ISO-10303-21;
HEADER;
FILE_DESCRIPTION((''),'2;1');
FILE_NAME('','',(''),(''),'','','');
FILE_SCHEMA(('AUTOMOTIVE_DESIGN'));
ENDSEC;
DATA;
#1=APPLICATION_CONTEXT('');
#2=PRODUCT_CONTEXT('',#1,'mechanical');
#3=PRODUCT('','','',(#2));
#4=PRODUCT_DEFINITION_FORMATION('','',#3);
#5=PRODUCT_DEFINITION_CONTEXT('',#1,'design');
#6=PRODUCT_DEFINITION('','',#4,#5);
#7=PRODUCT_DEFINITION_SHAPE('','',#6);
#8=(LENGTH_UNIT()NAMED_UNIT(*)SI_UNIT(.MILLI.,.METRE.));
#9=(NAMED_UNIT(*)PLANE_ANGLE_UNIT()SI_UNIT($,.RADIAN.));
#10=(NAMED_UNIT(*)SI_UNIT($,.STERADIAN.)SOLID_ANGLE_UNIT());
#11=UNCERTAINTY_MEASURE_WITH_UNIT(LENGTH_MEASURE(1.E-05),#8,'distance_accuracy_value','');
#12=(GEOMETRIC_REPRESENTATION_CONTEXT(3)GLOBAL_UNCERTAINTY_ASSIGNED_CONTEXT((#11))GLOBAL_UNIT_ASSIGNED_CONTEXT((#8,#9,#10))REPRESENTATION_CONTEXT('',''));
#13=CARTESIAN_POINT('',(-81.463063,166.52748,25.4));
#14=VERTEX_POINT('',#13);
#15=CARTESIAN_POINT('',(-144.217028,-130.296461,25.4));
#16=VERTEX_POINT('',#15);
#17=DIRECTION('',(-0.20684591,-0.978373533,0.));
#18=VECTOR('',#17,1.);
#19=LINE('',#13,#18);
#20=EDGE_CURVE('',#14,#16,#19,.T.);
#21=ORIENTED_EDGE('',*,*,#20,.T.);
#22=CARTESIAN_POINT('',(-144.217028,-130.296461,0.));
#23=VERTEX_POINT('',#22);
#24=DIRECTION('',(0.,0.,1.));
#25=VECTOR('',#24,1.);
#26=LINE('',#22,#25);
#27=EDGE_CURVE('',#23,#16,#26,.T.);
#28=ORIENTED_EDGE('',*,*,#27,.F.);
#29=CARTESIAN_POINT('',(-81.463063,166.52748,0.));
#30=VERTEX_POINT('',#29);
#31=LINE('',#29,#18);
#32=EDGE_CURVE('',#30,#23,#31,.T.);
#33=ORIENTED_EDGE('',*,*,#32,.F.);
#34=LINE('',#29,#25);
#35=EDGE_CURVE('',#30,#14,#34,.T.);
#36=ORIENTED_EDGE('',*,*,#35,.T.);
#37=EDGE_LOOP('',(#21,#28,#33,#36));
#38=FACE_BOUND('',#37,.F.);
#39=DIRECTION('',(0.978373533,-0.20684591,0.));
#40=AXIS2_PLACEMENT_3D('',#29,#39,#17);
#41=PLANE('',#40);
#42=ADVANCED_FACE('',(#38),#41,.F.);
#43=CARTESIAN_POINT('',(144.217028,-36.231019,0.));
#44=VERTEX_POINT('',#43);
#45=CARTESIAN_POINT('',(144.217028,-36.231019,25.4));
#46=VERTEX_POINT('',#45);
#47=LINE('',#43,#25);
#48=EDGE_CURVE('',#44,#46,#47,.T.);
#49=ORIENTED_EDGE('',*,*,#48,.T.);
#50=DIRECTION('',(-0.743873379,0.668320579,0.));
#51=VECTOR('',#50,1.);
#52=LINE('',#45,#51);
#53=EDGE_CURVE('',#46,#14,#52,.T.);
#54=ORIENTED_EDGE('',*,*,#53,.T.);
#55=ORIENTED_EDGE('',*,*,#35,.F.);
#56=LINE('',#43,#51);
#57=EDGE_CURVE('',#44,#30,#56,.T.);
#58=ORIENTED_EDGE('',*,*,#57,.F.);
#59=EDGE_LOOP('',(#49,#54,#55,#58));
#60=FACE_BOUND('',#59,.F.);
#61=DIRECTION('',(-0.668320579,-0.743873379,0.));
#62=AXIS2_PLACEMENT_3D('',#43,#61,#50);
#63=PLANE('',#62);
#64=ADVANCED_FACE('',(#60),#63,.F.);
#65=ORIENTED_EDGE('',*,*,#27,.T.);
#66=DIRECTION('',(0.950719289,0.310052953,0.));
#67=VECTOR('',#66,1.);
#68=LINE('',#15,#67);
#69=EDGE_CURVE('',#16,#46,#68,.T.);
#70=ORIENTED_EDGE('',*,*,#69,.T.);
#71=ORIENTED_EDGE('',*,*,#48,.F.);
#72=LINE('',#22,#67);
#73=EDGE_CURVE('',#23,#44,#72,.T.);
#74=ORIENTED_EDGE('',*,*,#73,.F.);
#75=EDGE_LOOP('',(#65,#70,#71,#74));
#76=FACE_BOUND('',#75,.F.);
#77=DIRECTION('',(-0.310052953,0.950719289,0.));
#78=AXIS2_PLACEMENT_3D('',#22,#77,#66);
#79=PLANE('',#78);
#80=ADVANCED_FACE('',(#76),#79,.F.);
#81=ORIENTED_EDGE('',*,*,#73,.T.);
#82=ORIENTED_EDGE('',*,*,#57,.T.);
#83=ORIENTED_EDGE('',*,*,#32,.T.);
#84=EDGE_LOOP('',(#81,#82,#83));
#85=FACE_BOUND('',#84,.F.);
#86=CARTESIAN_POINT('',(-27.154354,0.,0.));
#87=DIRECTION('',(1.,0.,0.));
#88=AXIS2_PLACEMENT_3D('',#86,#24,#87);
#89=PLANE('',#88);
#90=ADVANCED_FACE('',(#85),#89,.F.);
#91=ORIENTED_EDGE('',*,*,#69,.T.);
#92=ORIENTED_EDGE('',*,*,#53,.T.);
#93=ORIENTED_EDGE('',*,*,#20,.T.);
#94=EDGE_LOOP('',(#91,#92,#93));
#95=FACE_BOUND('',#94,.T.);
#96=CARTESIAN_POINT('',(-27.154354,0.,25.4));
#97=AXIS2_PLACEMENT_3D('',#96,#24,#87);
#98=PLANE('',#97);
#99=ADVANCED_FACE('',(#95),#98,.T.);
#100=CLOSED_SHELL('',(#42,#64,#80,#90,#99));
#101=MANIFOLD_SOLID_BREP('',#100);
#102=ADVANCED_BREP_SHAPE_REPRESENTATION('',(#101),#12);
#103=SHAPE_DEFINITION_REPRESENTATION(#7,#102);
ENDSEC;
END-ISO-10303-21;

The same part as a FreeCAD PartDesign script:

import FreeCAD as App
import Part
import Sketcher

V = App.Vector
Q = App.Units.Quantity

doc = App.newDocument("Part")
body = doc.addObject("PartDesign::Body", "Body")

# Sketch on XY plane
sketch1 = doc.addObject("Sketcher::SketchObject", "Sketch")
body.addObject(sketch1)
sketch1.AttachmentSupport = (doc.XY_Plane, [""])
sketch1.MapMode = "FlatFace"
sketch1.addGeometry(Part.LineSegment(V(-144, -130, 0), V(144, -36, 0)), False)
sketch1.addGeometry(Part.LineSegment(V(144, -36, 0), V(-81, 167, 0)), False)
sketch1.addGeometry(Part.LineSegment(V(-81, 167, 0), V(-144, -130, 0)), False)
sketch1.addConstraint(Sketcher.Constraint("Coincident", 0, 2, 1, 1))
sketch1.addConstraint(Sketcher.Constraint("Coincident", 1, 2, 2, 1))
sketch1.addConstraint(Sketcher.Constraint("Coincident", 2, 2, 0, 1))
sketch1.addConstraint(Sketcher.Constraint("Equal", 0, 1))
sketch1.addConstraint(Sketcher.Constraint("Equal", 1, 2))
sketch1.addConstraint(Sketcher.Constraint("DistanceY", -1, 1, 1, 2, Q("6.5562 in")))
sketch1.addConstraint(Sketcher.Constraint("DistanceY", 0, 2, 1, 2, 202.758498))
sketch1.addConstraint(Sketcher.Constraint("Distance", 0, 303.385089))
sketch1.addConstraint(Sketcher.Constraint("DistanceX", -1, 1, 0, 2, 144.217028))
pad1 = doc.addObject("PartDesign::Pad", "Pad")
body.addObject(pad1)
pad1.Profile = sketch1
pad1.Length = Q("1 in")

doc.recompute()
